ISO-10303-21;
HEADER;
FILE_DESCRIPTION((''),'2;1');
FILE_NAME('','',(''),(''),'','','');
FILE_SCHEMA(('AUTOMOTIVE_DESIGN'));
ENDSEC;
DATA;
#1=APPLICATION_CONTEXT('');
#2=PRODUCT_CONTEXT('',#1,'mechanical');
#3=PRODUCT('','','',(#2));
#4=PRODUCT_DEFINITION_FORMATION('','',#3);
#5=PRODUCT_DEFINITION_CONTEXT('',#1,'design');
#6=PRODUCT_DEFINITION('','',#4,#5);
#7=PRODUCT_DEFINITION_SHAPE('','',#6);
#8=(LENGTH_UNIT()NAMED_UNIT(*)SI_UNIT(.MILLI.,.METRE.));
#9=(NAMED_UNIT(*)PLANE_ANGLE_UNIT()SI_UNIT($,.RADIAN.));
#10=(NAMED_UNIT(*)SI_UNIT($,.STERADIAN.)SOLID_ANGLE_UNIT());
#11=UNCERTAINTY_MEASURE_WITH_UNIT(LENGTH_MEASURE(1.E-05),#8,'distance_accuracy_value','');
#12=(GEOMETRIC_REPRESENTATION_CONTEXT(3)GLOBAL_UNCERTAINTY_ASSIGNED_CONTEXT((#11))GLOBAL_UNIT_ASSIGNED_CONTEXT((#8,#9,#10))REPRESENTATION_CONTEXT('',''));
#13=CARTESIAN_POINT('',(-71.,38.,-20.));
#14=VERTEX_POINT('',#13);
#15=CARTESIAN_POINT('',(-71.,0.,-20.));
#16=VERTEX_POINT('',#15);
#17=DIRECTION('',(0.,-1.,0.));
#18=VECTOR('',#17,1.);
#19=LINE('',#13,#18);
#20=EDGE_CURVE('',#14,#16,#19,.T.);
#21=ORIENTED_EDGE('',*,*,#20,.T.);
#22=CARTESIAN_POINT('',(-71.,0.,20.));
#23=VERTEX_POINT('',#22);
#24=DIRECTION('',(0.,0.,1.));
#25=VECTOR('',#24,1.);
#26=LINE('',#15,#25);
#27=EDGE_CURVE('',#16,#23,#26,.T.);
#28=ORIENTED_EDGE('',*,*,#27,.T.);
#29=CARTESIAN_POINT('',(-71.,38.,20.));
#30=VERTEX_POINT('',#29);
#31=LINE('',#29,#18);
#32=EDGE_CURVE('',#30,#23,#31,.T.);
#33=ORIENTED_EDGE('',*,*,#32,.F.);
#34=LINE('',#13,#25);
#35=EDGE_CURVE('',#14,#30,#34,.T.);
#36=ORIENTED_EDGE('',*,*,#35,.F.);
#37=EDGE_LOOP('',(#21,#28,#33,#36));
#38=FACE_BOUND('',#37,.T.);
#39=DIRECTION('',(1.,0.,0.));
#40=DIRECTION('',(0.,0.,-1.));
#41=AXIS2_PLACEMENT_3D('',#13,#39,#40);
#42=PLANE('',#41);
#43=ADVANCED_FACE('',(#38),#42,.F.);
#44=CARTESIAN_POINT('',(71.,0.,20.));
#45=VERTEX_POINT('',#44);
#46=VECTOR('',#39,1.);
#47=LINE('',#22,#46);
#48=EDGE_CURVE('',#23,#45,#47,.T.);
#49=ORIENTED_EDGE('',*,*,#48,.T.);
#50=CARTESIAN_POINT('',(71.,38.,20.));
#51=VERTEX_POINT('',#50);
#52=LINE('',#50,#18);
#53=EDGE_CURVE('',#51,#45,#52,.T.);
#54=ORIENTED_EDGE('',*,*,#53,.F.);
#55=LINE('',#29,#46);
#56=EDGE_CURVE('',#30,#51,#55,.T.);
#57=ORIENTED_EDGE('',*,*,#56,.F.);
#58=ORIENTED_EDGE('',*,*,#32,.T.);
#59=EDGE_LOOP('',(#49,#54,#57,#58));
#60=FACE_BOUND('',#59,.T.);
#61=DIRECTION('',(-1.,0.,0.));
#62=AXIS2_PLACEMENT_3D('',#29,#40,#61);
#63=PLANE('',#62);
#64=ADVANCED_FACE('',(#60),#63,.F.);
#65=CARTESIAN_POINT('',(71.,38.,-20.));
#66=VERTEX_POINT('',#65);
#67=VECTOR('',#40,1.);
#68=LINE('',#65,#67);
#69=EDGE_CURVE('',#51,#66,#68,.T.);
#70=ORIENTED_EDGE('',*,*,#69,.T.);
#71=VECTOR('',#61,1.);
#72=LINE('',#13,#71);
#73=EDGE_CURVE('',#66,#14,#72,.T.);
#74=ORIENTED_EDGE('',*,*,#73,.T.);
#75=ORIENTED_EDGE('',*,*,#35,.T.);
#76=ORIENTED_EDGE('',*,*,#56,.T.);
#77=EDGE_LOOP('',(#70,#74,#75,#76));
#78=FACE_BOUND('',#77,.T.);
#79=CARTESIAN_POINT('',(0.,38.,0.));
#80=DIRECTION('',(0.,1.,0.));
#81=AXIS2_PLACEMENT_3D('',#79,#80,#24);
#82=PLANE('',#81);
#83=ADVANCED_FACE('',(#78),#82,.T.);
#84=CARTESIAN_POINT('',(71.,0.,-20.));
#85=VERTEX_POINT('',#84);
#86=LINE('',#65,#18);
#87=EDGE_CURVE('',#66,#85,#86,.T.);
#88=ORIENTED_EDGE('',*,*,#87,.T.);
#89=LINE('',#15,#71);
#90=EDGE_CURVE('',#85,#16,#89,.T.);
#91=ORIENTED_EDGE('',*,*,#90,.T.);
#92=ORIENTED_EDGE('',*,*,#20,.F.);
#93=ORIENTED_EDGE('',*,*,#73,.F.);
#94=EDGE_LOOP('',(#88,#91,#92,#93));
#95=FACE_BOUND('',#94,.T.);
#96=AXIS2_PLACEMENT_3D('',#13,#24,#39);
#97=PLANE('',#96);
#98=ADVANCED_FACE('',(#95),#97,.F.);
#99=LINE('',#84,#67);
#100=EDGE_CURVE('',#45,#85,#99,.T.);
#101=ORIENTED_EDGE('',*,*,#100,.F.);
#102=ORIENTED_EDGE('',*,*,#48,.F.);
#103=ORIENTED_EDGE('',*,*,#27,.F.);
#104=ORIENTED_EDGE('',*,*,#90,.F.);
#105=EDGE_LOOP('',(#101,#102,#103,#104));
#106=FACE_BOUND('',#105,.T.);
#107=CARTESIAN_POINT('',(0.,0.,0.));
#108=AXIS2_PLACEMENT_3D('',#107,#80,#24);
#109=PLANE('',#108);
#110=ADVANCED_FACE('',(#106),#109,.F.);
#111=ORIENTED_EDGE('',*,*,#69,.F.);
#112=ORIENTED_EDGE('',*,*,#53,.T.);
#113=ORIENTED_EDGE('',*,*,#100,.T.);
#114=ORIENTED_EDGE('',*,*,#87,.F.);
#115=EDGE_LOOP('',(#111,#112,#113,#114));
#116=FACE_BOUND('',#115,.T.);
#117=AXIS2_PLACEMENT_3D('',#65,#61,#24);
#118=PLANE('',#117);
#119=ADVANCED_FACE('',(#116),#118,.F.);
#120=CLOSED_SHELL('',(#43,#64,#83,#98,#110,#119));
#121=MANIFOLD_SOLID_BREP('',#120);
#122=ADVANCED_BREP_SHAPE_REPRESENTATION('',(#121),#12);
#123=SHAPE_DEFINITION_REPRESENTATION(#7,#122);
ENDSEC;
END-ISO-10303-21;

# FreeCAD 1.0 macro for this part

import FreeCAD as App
import Part
import Sketcher

doc = App.newDocument("Part")
body = doc.addObject("PartDesign::Body", "Body")

sketch1 = doc.addObject("Sketcher::SketchObject", "Sketch")
body.addObject(sketch1)
sketch1.AttachmentSupport = (doc.XZ_Plane, [""])
sketch1.MapMode = "FlatFace"
sketch1.addGeometry([
    Part.LineSegment(App.Vector(-71, -20, 0), App.Vector(-71, 20, 0)),
    Part.LineSegment(App.Vector(-71, 20, 0), App.Vector(71, 20, 0)),
    Part.LineSegment(App.Vector(71, 20, 0), App.Vector(71, -20, 0)),
    Part.LineSegment(App.Vector(71, -20, 0), App.Vector(-71, -20, 0)),
], False)
sketch1.addConstraint([
    Sketcher.Constraint("Coincident", 0, 2, 1, 1),
    Sketcher.Constraint("Coincident", 1, 2, 2, 1),
    Sketcher.Constraint("Coincident", 2, 2, 3, 1),
    Sketcher.Constraint("Coincident", 3, 2, 0, 1),
    Sketcher.Constraint("Vertical", 0),
    Sketcher.Constraint("Horizontal", 1),
    Sketcher.Constraint("Vertical", 2),
    Sketcher.Constraint("Horizontal", 3),
    Sketcher.Constraint("Symmetric", 0, 2, 2, 2, -1, 1),
    Sketcher.Constraint("DistanceX", 1, 1, 1, 2, 142.0),
    Sketcher.Constraint("DistanceY", 0, 1, 0, 2, 40.0),
])
pad1 = doc.addObject("PartDesign::Pad", "Pad")
body.addObject(pad1)
pad1.Profile = sketch1
pad1.Length = 38
pad1.Reversed = True

doc.recompute()
